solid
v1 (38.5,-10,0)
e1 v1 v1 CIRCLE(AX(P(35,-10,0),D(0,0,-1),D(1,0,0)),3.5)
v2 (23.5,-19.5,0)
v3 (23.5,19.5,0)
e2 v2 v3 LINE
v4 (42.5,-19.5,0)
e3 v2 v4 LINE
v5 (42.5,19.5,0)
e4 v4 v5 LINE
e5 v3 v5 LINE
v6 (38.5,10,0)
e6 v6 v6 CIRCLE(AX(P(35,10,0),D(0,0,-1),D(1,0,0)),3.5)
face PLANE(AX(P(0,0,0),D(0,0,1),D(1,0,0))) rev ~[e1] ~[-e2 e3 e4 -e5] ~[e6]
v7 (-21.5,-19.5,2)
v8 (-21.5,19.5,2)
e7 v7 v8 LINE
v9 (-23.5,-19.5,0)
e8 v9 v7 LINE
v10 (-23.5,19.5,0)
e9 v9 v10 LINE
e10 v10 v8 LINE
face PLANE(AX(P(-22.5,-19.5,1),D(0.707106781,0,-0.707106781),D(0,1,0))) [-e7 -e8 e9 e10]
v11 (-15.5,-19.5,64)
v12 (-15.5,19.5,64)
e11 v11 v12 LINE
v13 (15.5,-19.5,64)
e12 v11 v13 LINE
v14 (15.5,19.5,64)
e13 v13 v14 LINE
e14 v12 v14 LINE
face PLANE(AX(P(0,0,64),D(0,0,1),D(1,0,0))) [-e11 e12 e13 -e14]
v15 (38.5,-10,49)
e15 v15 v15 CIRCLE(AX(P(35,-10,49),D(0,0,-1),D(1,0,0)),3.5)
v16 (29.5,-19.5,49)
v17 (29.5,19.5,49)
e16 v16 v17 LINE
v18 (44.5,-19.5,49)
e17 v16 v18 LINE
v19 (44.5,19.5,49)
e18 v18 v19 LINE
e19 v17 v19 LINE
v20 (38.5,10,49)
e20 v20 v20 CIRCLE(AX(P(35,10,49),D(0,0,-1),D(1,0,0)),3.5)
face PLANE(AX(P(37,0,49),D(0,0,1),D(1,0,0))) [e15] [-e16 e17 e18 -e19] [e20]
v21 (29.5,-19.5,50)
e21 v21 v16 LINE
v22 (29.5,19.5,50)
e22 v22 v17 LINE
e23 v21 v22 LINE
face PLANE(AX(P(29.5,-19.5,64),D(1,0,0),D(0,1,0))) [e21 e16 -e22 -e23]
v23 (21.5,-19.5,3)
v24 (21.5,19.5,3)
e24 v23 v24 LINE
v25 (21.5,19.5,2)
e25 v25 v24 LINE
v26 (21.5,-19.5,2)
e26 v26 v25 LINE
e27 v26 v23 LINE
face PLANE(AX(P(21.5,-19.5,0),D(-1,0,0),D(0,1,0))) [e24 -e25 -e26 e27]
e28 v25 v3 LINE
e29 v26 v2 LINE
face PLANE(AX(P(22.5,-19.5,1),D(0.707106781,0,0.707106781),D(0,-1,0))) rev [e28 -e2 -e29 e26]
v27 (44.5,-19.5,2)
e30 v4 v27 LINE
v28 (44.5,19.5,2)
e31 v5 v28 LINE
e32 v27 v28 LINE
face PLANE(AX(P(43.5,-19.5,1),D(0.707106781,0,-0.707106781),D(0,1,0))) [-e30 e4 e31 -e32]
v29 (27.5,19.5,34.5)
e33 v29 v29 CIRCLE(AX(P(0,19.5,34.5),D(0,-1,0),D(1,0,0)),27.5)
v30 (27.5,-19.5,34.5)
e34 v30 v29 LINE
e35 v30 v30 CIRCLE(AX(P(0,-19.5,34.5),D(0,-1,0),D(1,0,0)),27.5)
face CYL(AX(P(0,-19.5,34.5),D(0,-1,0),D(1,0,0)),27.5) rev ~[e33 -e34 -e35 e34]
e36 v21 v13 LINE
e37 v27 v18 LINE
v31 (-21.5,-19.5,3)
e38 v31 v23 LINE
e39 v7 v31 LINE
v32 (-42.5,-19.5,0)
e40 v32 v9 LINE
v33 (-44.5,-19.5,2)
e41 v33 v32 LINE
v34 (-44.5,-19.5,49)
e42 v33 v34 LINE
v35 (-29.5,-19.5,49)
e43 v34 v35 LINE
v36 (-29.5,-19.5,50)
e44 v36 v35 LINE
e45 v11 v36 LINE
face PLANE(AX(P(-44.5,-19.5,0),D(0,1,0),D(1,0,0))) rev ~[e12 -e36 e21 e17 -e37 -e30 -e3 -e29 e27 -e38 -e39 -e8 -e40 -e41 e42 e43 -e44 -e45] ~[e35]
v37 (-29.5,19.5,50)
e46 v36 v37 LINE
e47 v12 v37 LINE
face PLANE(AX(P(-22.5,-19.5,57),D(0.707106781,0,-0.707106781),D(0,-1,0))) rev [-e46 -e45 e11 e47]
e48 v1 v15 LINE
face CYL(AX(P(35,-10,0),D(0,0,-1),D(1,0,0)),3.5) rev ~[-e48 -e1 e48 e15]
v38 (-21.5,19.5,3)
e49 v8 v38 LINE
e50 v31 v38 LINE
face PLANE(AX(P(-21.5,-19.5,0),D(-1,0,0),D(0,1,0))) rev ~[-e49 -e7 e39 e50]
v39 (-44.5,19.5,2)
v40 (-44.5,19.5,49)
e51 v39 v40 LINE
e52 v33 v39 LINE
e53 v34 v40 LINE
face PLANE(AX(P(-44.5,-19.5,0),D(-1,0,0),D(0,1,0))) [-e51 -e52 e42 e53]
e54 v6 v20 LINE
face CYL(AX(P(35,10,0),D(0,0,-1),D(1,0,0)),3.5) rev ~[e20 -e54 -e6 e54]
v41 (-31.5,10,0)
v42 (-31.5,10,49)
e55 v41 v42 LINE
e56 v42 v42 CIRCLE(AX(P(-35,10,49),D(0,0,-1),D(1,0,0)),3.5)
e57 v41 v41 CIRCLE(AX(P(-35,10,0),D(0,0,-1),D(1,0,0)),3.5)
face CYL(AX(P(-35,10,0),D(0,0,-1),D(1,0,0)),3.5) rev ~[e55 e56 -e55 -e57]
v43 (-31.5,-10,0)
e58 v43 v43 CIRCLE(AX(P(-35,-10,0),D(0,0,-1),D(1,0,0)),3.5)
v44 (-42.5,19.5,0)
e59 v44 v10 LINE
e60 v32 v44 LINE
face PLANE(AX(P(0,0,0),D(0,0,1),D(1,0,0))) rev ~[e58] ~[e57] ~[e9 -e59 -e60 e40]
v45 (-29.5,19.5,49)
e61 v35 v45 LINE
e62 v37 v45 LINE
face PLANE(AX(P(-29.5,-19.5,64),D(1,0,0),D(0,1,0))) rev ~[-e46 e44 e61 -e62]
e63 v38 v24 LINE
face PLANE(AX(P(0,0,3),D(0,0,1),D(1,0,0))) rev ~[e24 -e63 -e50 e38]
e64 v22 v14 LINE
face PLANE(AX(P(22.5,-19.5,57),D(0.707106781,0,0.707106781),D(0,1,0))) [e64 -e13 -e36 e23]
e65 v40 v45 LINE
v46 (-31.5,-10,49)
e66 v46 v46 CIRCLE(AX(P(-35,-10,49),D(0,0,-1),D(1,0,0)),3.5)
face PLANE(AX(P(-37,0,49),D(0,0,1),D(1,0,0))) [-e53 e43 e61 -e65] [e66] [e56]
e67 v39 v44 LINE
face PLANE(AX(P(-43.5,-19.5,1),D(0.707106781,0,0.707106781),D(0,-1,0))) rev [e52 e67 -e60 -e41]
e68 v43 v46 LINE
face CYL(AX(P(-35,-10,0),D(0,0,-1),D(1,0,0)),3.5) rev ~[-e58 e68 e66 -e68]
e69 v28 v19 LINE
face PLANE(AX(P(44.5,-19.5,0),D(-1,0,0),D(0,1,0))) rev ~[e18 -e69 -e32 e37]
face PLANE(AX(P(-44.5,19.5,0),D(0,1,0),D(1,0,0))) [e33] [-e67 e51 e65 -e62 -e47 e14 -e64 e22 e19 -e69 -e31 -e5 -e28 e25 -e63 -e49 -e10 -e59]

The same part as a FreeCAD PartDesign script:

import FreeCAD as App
import Part
import Sketcher
from FreeCAD import Vector


def edges_at(feature, points):
    """Names of the edges that pass closest to the given points."""
    edges = feature.Shape.Edges
    near = lambda p: min(range(len(edges)), key=lambda i: edges[i].distToShape(Part.Vertex(*p))[0])
    return sorted({f"Edge{near(p) + 1}" for p in points})

doc = App.newDocument("Part")
body = doc.addObject("PartDesign::Body", "Body")

# Sketch on XY plane
sketch1 = body.newObject("Sketcher::SketchObject", "Sketch")
sketch1.AttachmentSupport = (doc.getObject("XY_Plane"), [""])
sketch1.MapMode = "FlatFace"
sketch1.addGeometry([
    Part.LineSegment(Vector(-44, 20, 0), Vector(-44, -20, 0)),
    Part.LineSegment(Vector(-44, -20, 0), Vector(44, -20, 0)),
    Part.LineSegment(Vector(44, -20, 0), Vector(44, 20, 0)),
    Part.LineSegment(Vector(44, 20, 0), Vector(-44, 20, 0)),
], False)
sketch1.addConstraint([
    Sketcher.Constraint("Coincident", 0, 2, 1, 1),
    Sketcher.Constraint("Coincident", 1, 2, 2, 1),
    Sketcher.Constraint("Coincident", 2, 2, 3, 1),
    Sketcher.Constraint("Coincident", 3, 2, 0, 1),
    Sketcher.Constraint("Vertical", 0),
    Sketcher.Constraint("Horizontal", 1),
    Sketcher.Constraint("Vertical", 2),
    Sketcher.Constraint("Horizontal", 3),
    Sketcher.Constraint("Symmetric", 0, 2, 2, 2, -1, 1),
    Sketcher.Constraint("DistanceX", 1, 1, 1, 2, 89.0),
    Sketcher.Constraint("DistanceY", 0, 2, 0, 1, 39.0),
])
pad1 = body.newObject("PartDesign::Pad", "Pad")
pad1.Profile = sketch1
pad1.Length = 64

# Sketch on XY plane
sketch2 = body.newObject("Sketcher::SketchObject", "Sketch001")
sketch2.AttachmentSupport = (doc.getObject("XY_Plane"), [""])
sketch2.MapMode = "FlatFace"
sketch2.addGeometry([
    Part.LineSegment(Vector(-22, 20, 0), Vector(-22, -20, 0)),
    Part.LineSegment(Vector(-22, -20, 0), Vector(22, -20, 0)),
    Part.LineSegment(Vector(22, -20, 0), Vector(22, 20, 0)),
    Part.LineSegment(Vector(22, 20, 0), Vector(-22, 20, 0)),
], False)
sketch2.addConstraint([
    Sketcher.Constraint("Coincident", 0, 2, 1, 1),
    Sketcher.Constraint("Coincident", 1, 2, 2, 1),
    Sketcher.Constraint("Coincident", 2, 2, 3, 1),
    Sketcher.Constraint("Coincident", 3, 2, 0, 1),
    Sketcher.Constraint("Vertical", 0),
    Sketcher.Constraint("Horizontal", 1),
    Sketcher.Constraint("Vertical", 2),
    Sketcher.Constraint("Horizontal", 3),
    Sketcher.Constraint("Symmetric", 0, 2, 2, 2, -1, 1),
    Sketcher.Constraint("DistanceX", 1, 1, 1, 2, 43.0),
    Sketcher.Constraint("DistanceY", 0, 2, 0, 1, 39.0),
])
pocket1 = body.newObject("PartDesign::Pocket", "Pocket")
pocket1.Profile = sketch2
pocket1.Length = 3
pocket1.Reversed = True
doc.recompute()

chamfer = body.newObject("PartDesign::Chamfer", "Chamfer")
chamfer.Base = (pocket1, edges_at(pocket1, [
    (21.5, 0, 0),
    (-21.5, 0, 0),
    (44.5, 0, 0),
    (-44.5, 0, 0),
]))
chamfer.Size = 2

# Sketch on XZ plane
sketch3 = body.newObject("Sketcher::SketchObject", "Sketch002")
sketch3.AttachmentSupport = (doc.getObject("XZ_Plane"), [""])
sketch3.MapMode = "FlatFace"
sketch3.AttachmentOffset = App.Placement(Vector(0, 0, 19.5), App.Rotation())
sketch3.addGeometry(Part.Circle(Vector(0, 34, 0), Vector(0, 0, 1), 28), False)
sketch3.addConstraint([
    Sketcher.Constraint("PointOnObject", 0, 3, -2),
    Sketcher.Constraint("Diameter", 0, 55.0),
    Sketcher.Constraint("DistanceY", -1, 1, 0, 3, 34.5),
])
pocket2 = body.newObject("PartDesign::Pocket", "Pocket001")
pocket2.Profile = sketch3
pocket2.Type = "ThroughAll"

# Sketch on XY plane
sketch4 = body.newObject("Sketcher::SketchObject", "Sketch003")
sketch4.AttachmentSupport = (doc.getObject("XY_Plane"), [""])
sketch4.MapMode = "FlatFace"
sketch4.AttachmentOffset = App.Placement(Vector(0, 0, 64), App.Rotation())
sketch4.addGeometry([
    Part.LineSegment(Vector(-44, 20, 0), Vector(-44, -20, 0)),  # 0
    Part.LineSegment(Vector(-44, -20, 0), Vector(-30, -20, 0)),  # 1
    Part.LineSegment(Vector(-30, -20, 0), Vector(-30, 20, 0)),  # 2
    Part.LineSegment(Vector(-30, 20, 0), Vector(-44, 20, 0)),  # 3
    Part.LineSegment(Vector(30, 20, 0), Vector(30, -20, 0)),  # 4
    Part.LineSegment(Vector(30, -20, 0), Vector(44, -20, 0)),  # 5
    Part.LineSegment(Vector(44, -20, 0), Vector(44, 20, 0)),  # 6
    Part.LineSegment(Vector(44, 20, 0), Vector(30, 20, 0)),  # 7
], False)
sketch4.addConstraint([
    Sketcher.Constraint("Coincident", 0, 2, 1, 1),
    Sketcher.Constraint("Coincident", 1, 2, 2, 1),
    Sketcher.Constraint("Coincident", 2, 2, 3, 1),
    Sketcher.Constraint("Coincident", 3, 2, 0, 1),
    Sketcher.Constraint("Coincident", 4, 2, 5, 1),
    Sketcher.Constraint("Coincident", 5, 2, 6, 1),
    Sketcher.Constraint("Coincident", 6, 2, 7, 1),
    Sketcher.Constraint("Coincident", 7, 2, 4, 1),
    Sketcher.Constraint("Vertical", 0),
    Sketcher.Constraint("Horizontal", 1),
    Sketcher.Constraint("Vertical", 2),
    Sketcher.Constraint("Horizontal", 3),
    Sketcher.Constraint("Vertical", 4),
    Sketcher.Constraint("Horizontal", 5),
    Sketcher.Constraint("Vertical", 6),
    Sketcher.Constraint("Horizontal", 7),
    Sketcher.Constraint("Symmetric", 2, 2, 4, 2, -1, 1),
    Sketcher.Constraint("Symmetric", 0, 2, 6, 2, -1, 1),
    Sketcher.Constraint("Horizontal", 1, 2, 4, 2),
    Sketcher.Constraint("DistanceX", 1, 1, 1, 2, 15.0),
    Sketcher.Constraint("DistanceY", 0, 2, 0, 1, 39.0),
    Sketcher.Constraint("DistanceX", 1, 2, 4, 2, 59.0),
])
pocket3 = body.newObject("PartDesign::Pocket", "Pocket002")
pocket3.Profile = sketch4
pocket3.Length = 15
doc.recompute()

chamfer2 = body.newObject("PartDesign::Chamfer", "Chamfer001")
chamfer2.Base = (pocket3, edges_at(pocket3, [(29.5, 0, 64), (-29.5, 0, 64)]))
chamfer2.Size = 14

# Sketch on XY plane
sketch5 = body.newObject("Sketcher::SketchObject", "Sketch004")
sketch5.AttachmentSupport = (doc.getObject("XY_Plane"), [""])
sketch5.MapMode = "FlatFace"
sketch5.addGeometry([
    Part.Circle(Vector(-35, 10, 0), Vector(0, 0, 1), 3.5),
    Part.Circle(Vector(-35, -10, 0), Vector(0, 0, 1), 3.5),
    Part.Circle(Vector(35, -10, 0), Vector(0, 0, 1), 3.5),
    Part.Circle(Vector(35, 10, 0), Vector(0, 0, 1), 3.5),
], False)
sketch5.addConstraint([
    Sketcher.Constraint("Equal", 0, 1),
    Sketcher.Constraint("Equal", 1, 2),
    Sketcher.Constraint("Equal", 2, 3),
    Sketcher.Constraint("Symmetric", 0, 3, 2, 3, -1, 1),
    Sketcher.Constraint("Symmetric", 1, 3, 3, 3, -1, 1),
    Sketcher.Constraint("Symmetric", 1, 3, 2, 3, -2),
    Sketcher.Constraint("Diameter", 0, 7.0),
    Sketcher.Constraint("DistanceX", 0, 3, -1, 1, 35.0),
    Sketcher.Constraint("DistanceY", -1, 1, 0, 3, 10.0),
])
pocket4 = body.newObject("PartDesign::Pocket", "Pocket003")
pocket4.Profile = sketch5
pocket4.Type = "ThroughAll"
pocket4.Reversed = True

doc.recompute()
